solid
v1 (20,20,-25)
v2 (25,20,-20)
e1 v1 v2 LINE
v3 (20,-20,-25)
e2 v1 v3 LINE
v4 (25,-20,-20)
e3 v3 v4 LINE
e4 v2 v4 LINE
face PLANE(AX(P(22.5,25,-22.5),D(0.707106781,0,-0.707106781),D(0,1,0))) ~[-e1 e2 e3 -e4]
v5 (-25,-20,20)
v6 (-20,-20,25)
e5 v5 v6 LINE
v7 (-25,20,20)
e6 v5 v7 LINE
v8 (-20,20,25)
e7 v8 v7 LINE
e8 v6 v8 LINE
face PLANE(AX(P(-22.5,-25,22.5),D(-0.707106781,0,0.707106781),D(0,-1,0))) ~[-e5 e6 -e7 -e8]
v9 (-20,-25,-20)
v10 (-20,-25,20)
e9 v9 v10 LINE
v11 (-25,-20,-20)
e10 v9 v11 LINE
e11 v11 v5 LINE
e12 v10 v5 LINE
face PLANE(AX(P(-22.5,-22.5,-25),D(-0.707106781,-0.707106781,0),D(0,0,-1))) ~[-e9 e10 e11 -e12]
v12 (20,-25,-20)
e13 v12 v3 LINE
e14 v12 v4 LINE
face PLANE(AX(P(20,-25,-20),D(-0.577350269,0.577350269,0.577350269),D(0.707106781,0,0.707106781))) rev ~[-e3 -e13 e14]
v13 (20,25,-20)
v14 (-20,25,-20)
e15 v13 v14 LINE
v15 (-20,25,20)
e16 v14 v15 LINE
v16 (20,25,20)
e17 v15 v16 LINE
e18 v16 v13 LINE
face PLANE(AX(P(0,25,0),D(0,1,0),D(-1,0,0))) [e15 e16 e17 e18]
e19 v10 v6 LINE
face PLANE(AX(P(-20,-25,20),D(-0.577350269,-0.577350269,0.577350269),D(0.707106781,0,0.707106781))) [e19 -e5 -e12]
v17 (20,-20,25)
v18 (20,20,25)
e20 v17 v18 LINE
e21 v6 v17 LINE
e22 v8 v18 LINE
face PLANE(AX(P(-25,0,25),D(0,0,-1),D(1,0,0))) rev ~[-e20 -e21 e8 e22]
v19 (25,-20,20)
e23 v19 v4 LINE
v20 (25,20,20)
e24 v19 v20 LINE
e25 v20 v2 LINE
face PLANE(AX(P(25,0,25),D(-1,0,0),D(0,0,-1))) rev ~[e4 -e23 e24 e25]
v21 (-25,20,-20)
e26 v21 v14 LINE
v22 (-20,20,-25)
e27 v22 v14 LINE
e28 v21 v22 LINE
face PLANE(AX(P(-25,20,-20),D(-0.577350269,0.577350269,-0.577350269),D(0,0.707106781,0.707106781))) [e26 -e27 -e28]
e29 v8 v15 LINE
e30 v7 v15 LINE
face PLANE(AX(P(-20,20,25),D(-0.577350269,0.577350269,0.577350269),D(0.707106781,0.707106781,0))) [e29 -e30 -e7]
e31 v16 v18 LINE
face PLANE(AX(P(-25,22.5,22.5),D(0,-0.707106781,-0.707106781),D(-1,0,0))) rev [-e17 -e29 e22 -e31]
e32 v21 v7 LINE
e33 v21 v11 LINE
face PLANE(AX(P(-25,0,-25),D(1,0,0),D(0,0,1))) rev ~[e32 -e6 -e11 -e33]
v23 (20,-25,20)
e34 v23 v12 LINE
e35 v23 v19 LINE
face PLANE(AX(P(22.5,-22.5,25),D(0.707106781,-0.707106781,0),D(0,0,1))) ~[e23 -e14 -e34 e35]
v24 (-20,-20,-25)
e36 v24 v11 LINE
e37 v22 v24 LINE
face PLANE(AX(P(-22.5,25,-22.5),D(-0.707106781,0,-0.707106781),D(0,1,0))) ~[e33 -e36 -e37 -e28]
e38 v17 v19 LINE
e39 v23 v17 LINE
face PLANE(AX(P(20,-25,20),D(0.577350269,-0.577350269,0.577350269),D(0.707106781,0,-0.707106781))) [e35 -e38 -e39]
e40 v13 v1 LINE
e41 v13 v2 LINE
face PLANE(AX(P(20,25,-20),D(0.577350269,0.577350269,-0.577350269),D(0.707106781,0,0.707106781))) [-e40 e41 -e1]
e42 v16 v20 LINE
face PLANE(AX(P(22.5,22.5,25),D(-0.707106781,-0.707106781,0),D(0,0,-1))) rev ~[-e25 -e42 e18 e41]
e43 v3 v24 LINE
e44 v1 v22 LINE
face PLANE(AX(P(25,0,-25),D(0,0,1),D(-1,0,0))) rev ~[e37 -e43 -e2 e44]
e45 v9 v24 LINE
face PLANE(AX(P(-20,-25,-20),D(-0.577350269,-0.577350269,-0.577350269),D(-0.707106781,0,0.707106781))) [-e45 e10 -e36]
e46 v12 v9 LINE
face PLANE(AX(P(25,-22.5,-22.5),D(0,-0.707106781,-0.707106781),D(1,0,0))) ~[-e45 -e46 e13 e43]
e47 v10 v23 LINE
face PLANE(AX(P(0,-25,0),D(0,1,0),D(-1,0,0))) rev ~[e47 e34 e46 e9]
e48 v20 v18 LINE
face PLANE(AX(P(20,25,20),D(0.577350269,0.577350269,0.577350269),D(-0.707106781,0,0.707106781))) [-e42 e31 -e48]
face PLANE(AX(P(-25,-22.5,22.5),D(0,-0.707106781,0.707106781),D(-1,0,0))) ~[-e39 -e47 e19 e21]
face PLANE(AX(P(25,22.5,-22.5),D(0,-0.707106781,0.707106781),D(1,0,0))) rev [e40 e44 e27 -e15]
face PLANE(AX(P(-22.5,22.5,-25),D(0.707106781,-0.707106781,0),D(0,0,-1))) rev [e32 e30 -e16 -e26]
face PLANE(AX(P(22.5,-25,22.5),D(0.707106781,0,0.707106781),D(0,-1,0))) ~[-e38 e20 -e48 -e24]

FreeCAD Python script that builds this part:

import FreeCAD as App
import Part
import Sketcher

V = App.Vector
Q = App.Units.Quantity


def add_polygon(sketch, points):
    """Adds a closed chain of lines whose ends are joined by coincident constraints."""
    first, n = sketch.GeometryCount, len(points)
    for a, b in zip(points, points[1:] + points[:1]):
        sketch.addGeometry(Part.LineSegment(App.Vector(*a, 0), App.Vector(*b, 0)), False)
    for i in range(n):
        sketch.addConstraint(Sketcher.Constraint("Coincident", first + i, 2, first + (i + 1) % n, 1))

doc = App.newDocument("Part")
params = doc.addObject("Spreadsheet::Sheet", "Params")
for row, (alias, value) in enumerate([
    ("sketch1_width", "50 mm"),
    ("pad1_length", "50 mm"),
    ("chamfer_size", "5 mm"),
], start=1):
    params.set(f"A{row}", alias)
    params.set(f"B{row}", "=" + value)
    params.setAlias(f"B{row}", alias)

body = doc.addObject("PartDesign::Body", "Body")

sketch1 = doc.addObject("Sketcher::SketchObject", "Sketch")
body.addObject(sketch1)
sketch1.AttachmentSupport = (doc.XZ_Plane, [""])
sketch1.MapMode = "FlatFace"
add_polygon(sketch1, [(-25, -25), (-25, 25), (25, 25), (25, -25)])
sketch1.addConstraint([
    Sketcher.Constraint("Vertical", 0),
    Sketcher.Constraint("Horizontal", 1),
    Sketcher.Constraint("Vertical", 2),
    Sketcher.Constraint("Horizontal", 3),
    Sketcher.Constraint("Symmetric", 0, 2, 2, 2, -1, 1),
    Sketcher.Constraint("Equal", 3, 0),
    Sketcher.Constraint("DistanceX", 1, 1, 1, 2, Q("50 mm")),
])
sketch1.setExpression("Constraints[10]", "Params.sketch1_width")
pad1 = doc.addObject("PartDesign::Pad", "Pad")
body.addObject(pad1)
pad1.Profile = sketch1
pad1.setExpression("Length", "Params.pad1_length")
pad1.Midplane = True
doc.recompute()

chamfer = doc.addObject("PartDesign::Chamfer", "Chamfer")
body.addObject(chamfer)
chamfer.Base = (pad1, ["Edge1"])
chamfer.UseAllEdges = True
chamfer.setExpression("Size", "Params.chamfer_size")

doc.recompute()
